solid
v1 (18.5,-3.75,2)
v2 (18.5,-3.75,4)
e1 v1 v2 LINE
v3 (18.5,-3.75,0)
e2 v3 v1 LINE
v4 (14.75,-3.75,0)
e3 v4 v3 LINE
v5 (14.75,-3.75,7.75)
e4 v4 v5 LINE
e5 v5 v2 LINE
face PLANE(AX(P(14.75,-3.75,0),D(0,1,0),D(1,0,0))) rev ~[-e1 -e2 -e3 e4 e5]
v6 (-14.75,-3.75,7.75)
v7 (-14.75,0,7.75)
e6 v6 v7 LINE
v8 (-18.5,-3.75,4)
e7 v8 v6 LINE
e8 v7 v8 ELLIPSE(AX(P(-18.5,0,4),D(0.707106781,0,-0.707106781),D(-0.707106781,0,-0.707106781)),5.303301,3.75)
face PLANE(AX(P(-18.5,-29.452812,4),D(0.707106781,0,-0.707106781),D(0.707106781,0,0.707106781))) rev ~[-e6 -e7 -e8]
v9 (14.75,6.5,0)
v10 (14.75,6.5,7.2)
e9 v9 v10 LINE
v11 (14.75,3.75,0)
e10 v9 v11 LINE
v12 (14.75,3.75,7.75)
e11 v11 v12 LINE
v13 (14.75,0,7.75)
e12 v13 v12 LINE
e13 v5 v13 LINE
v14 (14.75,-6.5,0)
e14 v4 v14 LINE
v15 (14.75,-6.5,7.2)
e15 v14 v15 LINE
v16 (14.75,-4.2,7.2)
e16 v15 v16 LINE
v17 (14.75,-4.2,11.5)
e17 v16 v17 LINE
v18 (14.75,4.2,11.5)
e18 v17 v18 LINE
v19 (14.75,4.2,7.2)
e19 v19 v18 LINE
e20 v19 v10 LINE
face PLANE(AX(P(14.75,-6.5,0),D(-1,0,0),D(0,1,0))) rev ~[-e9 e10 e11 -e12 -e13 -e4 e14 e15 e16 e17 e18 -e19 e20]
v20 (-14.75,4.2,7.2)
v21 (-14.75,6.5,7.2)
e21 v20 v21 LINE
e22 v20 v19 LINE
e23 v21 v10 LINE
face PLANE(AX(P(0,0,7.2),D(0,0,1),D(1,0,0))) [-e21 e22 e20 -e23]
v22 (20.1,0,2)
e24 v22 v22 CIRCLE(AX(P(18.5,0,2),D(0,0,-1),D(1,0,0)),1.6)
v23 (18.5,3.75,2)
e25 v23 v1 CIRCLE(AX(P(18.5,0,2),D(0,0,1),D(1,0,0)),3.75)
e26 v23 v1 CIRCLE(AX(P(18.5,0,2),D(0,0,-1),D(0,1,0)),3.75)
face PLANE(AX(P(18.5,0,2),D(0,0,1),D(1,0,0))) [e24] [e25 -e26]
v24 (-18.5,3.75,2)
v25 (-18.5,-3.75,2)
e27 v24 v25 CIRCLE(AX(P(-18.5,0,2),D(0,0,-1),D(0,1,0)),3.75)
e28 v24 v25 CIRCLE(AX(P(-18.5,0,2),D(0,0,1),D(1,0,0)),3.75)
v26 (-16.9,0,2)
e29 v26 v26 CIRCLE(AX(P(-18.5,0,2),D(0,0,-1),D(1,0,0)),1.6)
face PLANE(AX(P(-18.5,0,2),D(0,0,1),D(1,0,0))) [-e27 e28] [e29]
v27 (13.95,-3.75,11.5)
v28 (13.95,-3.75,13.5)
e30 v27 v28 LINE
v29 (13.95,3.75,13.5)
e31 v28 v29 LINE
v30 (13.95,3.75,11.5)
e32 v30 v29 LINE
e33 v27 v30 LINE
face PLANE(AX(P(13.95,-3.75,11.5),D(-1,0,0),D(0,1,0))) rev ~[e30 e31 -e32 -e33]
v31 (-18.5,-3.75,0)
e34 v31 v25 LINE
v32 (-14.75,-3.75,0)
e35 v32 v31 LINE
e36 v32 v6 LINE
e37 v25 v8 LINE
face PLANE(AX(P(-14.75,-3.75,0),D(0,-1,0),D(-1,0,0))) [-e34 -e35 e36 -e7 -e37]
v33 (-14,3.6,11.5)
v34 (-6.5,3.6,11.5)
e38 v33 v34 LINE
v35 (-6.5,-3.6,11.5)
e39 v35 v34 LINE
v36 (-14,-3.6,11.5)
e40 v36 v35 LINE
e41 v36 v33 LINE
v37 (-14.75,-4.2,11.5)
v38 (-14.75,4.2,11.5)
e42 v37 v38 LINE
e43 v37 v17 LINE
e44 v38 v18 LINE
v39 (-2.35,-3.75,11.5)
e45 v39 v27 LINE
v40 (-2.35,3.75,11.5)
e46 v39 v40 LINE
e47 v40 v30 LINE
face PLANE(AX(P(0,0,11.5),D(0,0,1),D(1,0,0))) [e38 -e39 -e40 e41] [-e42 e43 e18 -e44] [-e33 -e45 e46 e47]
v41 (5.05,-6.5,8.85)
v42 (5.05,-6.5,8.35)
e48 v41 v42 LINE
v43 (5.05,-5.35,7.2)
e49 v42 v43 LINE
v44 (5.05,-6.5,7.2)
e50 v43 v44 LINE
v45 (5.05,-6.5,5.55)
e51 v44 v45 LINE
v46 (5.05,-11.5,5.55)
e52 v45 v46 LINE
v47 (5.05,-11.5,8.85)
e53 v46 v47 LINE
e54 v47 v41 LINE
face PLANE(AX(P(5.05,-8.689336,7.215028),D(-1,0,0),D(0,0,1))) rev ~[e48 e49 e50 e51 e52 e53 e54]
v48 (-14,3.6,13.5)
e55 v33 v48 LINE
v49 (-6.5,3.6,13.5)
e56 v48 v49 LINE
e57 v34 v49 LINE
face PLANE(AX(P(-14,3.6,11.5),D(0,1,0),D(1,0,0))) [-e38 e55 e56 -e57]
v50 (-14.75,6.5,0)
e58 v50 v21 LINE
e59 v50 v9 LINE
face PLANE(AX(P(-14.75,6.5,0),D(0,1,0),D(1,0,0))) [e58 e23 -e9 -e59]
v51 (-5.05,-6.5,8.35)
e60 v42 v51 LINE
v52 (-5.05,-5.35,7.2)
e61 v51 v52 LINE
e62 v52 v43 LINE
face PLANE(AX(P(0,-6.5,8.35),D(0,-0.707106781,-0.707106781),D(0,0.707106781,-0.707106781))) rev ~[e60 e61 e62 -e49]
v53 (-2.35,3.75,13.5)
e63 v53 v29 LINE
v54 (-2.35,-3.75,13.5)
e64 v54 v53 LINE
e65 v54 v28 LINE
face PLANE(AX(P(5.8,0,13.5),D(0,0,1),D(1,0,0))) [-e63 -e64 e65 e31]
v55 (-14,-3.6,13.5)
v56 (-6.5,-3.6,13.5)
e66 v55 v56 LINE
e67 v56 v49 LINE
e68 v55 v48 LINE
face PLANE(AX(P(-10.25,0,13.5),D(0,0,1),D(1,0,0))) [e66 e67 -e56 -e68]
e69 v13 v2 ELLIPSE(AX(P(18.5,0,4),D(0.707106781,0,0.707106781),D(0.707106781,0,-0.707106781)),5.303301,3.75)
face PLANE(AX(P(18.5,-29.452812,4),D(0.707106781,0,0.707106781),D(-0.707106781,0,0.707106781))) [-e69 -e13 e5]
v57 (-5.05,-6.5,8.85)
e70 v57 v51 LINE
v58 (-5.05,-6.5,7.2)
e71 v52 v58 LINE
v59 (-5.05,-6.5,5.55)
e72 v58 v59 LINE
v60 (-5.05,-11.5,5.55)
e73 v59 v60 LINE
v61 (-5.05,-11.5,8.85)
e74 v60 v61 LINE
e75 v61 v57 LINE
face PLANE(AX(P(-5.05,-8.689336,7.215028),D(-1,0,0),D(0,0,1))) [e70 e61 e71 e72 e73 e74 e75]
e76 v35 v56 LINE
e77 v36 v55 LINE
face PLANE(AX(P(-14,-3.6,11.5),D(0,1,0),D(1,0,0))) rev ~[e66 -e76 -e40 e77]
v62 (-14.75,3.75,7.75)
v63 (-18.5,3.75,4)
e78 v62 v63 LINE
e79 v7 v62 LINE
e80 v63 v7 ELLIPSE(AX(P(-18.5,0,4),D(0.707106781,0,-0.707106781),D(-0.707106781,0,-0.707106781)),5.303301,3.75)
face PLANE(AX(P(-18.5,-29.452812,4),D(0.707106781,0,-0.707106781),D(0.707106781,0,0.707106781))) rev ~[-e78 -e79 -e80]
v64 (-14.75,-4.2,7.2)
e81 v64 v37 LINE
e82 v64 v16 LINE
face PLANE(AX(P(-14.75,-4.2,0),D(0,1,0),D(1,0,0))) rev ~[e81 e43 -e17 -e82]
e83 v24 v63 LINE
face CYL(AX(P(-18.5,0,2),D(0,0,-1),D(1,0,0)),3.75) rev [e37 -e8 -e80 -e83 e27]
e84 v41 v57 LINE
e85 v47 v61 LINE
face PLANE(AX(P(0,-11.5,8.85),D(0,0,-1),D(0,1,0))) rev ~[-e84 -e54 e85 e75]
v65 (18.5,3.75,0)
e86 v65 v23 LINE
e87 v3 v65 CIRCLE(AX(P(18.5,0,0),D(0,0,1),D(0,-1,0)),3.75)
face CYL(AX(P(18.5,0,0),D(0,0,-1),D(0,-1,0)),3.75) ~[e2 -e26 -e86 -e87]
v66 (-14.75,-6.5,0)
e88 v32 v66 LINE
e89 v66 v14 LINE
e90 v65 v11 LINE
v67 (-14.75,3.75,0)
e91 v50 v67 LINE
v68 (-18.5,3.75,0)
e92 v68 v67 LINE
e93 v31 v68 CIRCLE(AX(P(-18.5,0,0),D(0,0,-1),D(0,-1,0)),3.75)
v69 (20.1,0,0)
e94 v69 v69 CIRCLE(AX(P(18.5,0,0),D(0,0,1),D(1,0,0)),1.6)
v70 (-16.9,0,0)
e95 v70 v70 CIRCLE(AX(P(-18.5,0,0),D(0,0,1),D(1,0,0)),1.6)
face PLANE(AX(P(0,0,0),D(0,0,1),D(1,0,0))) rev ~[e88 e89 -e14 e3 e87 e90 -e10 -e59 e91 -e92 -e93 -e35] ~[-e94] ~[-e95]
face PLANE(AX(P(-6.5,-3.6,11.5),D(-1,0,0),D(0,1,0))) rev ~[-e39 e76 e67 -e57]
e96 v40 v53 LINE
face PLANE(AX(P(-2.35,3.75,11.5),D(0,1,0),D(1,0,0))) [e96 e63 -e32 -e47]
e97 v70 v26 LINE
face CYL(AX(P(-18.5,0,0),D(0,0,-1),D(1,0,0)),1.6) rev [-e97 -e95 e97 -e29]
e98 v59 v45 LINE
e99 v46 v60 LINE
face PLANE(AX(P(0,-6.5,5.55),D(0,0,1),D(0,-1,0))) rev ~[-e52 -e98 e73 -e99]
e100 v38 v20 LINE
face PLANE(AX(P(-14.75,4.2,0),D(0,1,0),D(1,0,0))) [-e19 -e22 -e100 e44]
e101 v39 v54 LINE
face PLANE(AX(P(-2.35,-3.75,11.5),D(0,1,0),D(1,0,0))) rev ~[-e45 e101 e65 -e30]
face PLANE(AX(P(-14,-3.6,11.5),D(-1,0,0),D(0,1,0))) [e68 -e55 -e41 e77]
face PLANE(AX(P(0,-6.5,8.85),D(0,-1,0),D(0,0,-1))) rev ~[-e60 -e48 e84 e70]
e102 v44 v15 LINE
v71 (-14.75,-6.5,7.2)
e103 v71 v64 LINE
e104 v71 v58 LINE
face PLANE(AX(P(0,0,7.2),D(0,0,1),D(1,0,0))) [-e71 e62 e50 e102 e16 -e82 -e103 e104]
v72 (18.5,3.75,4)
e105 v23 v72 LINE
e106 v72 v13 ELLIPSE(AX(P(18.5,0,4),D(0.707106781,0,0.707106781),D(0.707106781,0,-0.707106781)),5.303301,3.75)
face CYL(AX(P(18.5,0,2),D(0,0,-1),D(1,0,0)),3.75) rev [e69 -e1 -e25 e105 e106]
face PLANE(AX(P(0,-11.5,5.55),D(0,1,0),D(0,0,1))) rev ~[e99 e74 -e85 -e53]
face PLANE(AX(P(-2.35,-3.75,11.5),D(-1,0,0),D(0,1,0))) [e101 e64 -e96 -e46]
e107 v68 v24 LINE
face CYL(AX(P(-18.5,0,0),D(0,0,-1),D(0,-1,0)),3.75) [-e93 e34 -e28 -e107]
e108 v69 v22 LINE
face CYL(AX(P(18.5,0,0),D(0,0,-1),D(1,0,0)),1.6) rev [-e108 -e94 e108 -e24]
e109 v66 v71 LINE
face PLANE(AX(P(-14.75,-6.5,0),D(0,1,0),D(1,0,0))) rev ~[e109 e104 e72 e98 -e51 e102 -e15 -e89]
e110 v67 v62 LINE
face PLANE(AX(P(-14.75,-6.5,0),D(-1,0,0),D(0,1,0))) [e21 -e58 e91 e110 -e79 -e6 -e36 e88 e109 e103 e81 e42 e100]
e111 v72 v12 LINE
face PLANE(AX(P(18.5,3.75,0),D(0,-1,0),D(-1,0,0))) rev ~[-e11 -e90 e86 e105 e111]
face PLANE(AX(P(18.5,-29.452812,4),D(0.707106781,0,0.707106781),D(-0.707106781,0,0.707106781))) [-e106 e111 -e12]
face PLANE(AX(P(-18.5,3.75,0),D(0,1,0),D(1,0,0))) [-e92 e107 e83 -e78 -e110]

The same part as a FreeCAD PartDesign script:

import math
import FreeCAD as App
import Part
import Sketcher
from FreeCAD import Vector
Q = App.Units.Quantity

doc = App.newDocument("Part")
body = doc.addObject("PartDesign::Body", "Body")

# Sketch on XY plane
sketch1 = body.newObject("Sketcher::SketchObject", "Sketch")
sketch1.AttachmentSupport = (doc.getObject("XY_Plane"), [""])
sketch1.MapMode = "FlatFace"
sketch1.addGeometry([
    Part.LineSegment(Vector(-14.75, 4.2, 0), Vector(-14.75, -4.2, 0)),
    Part.LineSegment(Vector(-14.75, -4.2, 0), Vector(14.75, -4.2, 0)),
    Part.LineSegment(Vector(14.75, -4.2, 0), Vector(14.75, 4.2, 0)),
    Part.LineSegment(Vector(14.75, 4.2, 0), Vector(-14.75, 4.2, 0)),
], False)
sketch1.addConstraint([
    Sketcher.Constraint("Coincident", 0, 2, 1, 1),
    Sketcher.Constraint("Coincident", 1, 2, 2, 1),
    Sketcher.Constraint("Coincident", 2, 2, 3, 1),
    Sketcher.Constraint("Coincident", 3, 2, 0, 1),
    Sketcher.Constraint("Vertical", 0),
    Sketcher.Constraint("Horizontal", 1),
    Sketcher.Constraint("Vertical", 2),
    Sketcher.Constraint("Horizontal", 3),
    Sketcher.Constraint("Symmetric", 0, 2, 2, 2, -1, 1),
    Sketcher.Constraint("DistanceX", 1, 1, 1, 2, Q("29.5 mm")),
    Sketcher.Constraint("DistanceY", 0, 2, 0, 1, Q("8.4 mm")),
])
pad1 = body.newObject("PartDesign::Pad", "Pad")
pad1.Profile = sketch1
pad1.Length = 11.5

# Sketch on XY plane
sketch2 = body.newObject("Sketcher::SketchObject", "Sketch001")
sketch2.AttachmentSupport = (doc.getObject("XY_Plane"), [""])
sketch2.MapMode = "FlatFace"
sketch2.AttachmentOffset = App.Placement(Vector(0, 0, 11.5), App.Rotation())
sketch2.addGeometry([
    Part.LineSegment(Vector(-14, 3.6, 0), Vector(-14, -3.6, 0)),  # 0
    Part.LineSegment(Vector(-14, -3.6, 0), Vector(-6.5, -3.6, 0)),  # 1
    Part.LineSegment(Vector(-6.5, -3.6, 0), Vector(-6.5, 3.6, 0)),  # 2
    Part.LineSegment(Vector(-6.5, 3.6, 0), Vector(-14, 3.6, 0)),  # 3
    Part.LineSegment(Vector(-2.35, 3.75, 0), Vector(-2.35, -3.75, 0)),  # 4
    Part.LineSegment(Vector(-2.35, -3.75, 0), Vector(13.95, -3.75, 0)),  # 5
    Part.LineSegment(Vector(13.95, -3.75, 0), Vector(13.95, 3.75, 0)),  # 6
    Part.LineSegment(Vector(13.95, 3.75, 0), Vector(-2.35, 3.75, 0)),  # 7
], False)
sketch2.addConstraint([
    Sketcher.Constraint("Coincident", 0, 2, 1, 1),
    Sketcher.Constraint("Coincident", 1, 2, 2, 1),
    Sketcher.Constraint("Coincident", 2, 2, 3, 1),
    Sketcher.Constraint("Coincident", 3, 2, 0, 1),
    Sketcher.Constraint("Coincident", 4, 2, 5, 1),
    Sketcher.Constraint("Coincident", 5, 2, 6, 1),
    Sketcher.Constraint("Coincident", 6, 2, 7, 1),
    Sketcher.Constraint("Coincident", 7, 2, 4, 1),
    Sketcher.Constraint("Vertical", 0),
    Sketcher.Constraint("Horizontal", 1),
    Sketcher.Constraint("Vertical", 2),
    Sketcher.Constraint("Horizontal", 3),
    Sketcher.Constraint("Vertical", 4),
    Sketcher.Constraint("Horizontal", 5),
    Sketcher.Constraint("Vertical", 6),
    Sketcher.Constraint("Horizontal", 7),
    Sketcher.Constraint("Equal", 3, 4),
    Sketcher.Constraint("DistanceX", 1, 1, 1, 2, Q("7.5 mm")),
    Sketcher.Constraint("DistanceX", 5, 1, 5, 2, Q("16.3 mm")),
    Sketcher.Constraint("DistanceY", 0, 2, 0, 1, Q("7.2 mm")),
    Sketcher.Constraint("DistanceX", 0, 2, -1, 1, Q("14 mm")),
    Sketcher.Constraint("DistanceY", 0, 2, -1, 1, Q("3.6 mm")),
    Sketcher.Constraint("DistanceX", 4, 2, -1, 1, Q("2.35 mm")),
    Sketcher.Constraint("DistanceY", 4, 2, -1, 1, Q("3.75 mm")),
])
pad2 = body.newObject("PartDesign::Pad", "Pad001")
pad2.Profile = sketch2
pad2.Length = 2

# Sketch on XY plane
sketch3 = body.newObject("Sketcher::SketchObject", "Sketch002")
sketch3.AttachmentSupport = (doc.getObject("XY_Plane"), [""])
sketch3.MapMode = "FlatFace"
sketch3.addGeometry([
    Part.LineSegment(Vector(-14.75, 6.5, 0), Vector(-14.75, -6.5, 0)),
    Part.LineSegment(Vector(-14.75, -6.5, 0), Vector(14.75, -6.5, 0)),
    Part.LineSegment(Vector(14.75, -6.5, 0), Vector(14.75, 6.5, 0)),
    Part.LineSegment(Vector(14.75, 6.5, 0), Vector(-14.75, 6.5, 0)),
], False)
sketch3.addConstraint([
    Sketcher.Constraint("Coincident", 0, 2, 1, 1),
    Sketcher.Constraint("Coincident", 1, 2, 2, 1),
    Sketcher.Constraint("Coincident", 2, 2, 3, 1),
    Sketcher.Constraint("Coincident", 3, 2, 0, 1),
    Sketcher.Constraint("Vertical", 0),
    Sketcher.Constraint("Horizontal", 1),
    Sketcher.Constraint("Vertical", 2),
    Sketcher.Constraint("Horizontal", 3),
    Sketcher.Constraint("Symmetric", 0, 2, 2, 2, -1, 1),
    Sketcher.Constraint("DistanceY", 0, 2, 0, 1, Q("13 mm")),
    Sketcher.Constraint("DistanceX", 1, 1, 1, 2, Q("29.5 mm")),
])
pad3 = body.newObject("PartDesign::Pad", "Pad002")
pad3.Profile = sketch3
pad3.Length = 7.2

# Sketch on YZ plane
sketch4 = body.newObject("Sketcher::SketchObject", "Sketch003")
sketch4.AttachmentSupport = (doc.getObject("YZ_Plane"), [""])
sketch4.MapMode = "FlatFace"
sketch4.addGeometry([
    Part.LineSegment(Vector(-11.5, 5.55, 0), Vector(-6.5, 5.55, 0)),  # 0
    Part.LineSegment(Vector(-6.5, 5.55, 0), Vector(-6.5, 7.2, 0)),  # 1
    Part.LineSegment(Vector(-6.5, 7.2, 0), Vector(-5.35, 7.2, 0)),  # 2
    Part.LineSegment(Vector(-5.35, 7.2, 0), Vector(-6.5, 8.35, 0)),  # 3
    Part.LineSegment(Vector(-6.5, 8.35, 0), Vector(-6.5, 8.85, 0)),  # 4
    Part.LineSegment(Vector(-6.5, 8.85, 0), Vector(-11.5, 8.85, 0)),  # 5
    Part.LineSegment(Vector(-11.5, 8.85, 0), Vector(-11.5, 5.55, 0)),  # 6
], False)
sketch4.addConstraint([
    Sketcher.Constraint("Coincident", 0, 2, 1, 1),
    Sketcher.Constraint("Coincident", 1, 2, 2, 1),
    Sketcher.Constraint("Coincident", 2, 2, 3, 1),
    Sketcher.Constraint("Coincident", 3, 2, 4, 1),
    Sketcher.Constraint("Coincident", 4, 2, 5, 1),
    Sketcher.Constraint("Coincident", 5, 2, 6, 1),
    Sketcher.Constraint("Coincident", 6, 2, 0, 1),
    Sketcher.Constraint("Horizontal", 0),
    Sketcher.Constraint("Vertical", 1),
    Sketcher.Constraint("Horizontal", 2),
    Sketcher.Constraint("Vertical", 4),
    Sketcher.Constraint("Horizontal", 5),
    Sketcher.Constraint("Vertical", 6),
    Sketcher.Constraint("Vertical", 1, 2, 3, 2),
    Sketcher.Constraint("DistanceX", 0, 1, 0, 2, Q("5 mm")),
    Sketcher.Constraint("Angle", 3, Q("135 deg")),
    Sketcher.Constraint("DistanceY", 4, 1, 4, 2, Q("0.5 mm")),
    Sketcher.Constraint("DistanceY", 6, 2, 6, 1, Q("3.3 mm")),
    Sketcher.Constraint("DistanceX", 2, 1, 2, 2, Q("1.15 mm")),
    Sketcher.Constraint("DistanceX", 0, 2, -1, 1, Q("6.5 mm")),
    Sketcher.Constraint("DistanceY", -1, 1, 1, 2, Q("7.2 mm")),
])
pad4 = body.newObject("PartDesign::Pad", "Pad003")
pad4.Profile = sketch4
pad4.Length = 10.1
pad4.Midplane = True

# Sketch on XY plane
sketch5 = body.newObject("Sketcher::SketchObject", "Sketch004")
sketch5.AttachmentSupport = (doc.getObject("XY_Plane"), [""])
sketch5.MapMode = "FlatFace"
sketch5.addGeometry([
    Part.LineSegment(Vector(-14.75, 3.75, 0), Vector(-18.5, 3.75, 0)),  # 0
    Part.ArcOfCircle(Part.Circle(Vector(-18.5, 0, 0), Vector(0, 0, 1), 3.75), math.radians(90), math.radians(270)),  # 1
    Part.LineSegment(Vector(-18.5, -3.75, 0), Vector(-14.75, -3.75, 0)),  # 2
    Part.LineSegment(Vector(-14.75, -3.75, 0), Vector(-14.75, 3.75, 0)),  # 3
    Part.Circle(Vector(-18.5, 0, 0), Vector(0, 0, 1), 1.6),  # 4
    Part.LineSegment(Vector(18.5, 3.75, 0), Vector(14.75, 3.75, 0)),  # 5
    Part.LineSegment(Vector(14.75, 3.75, 0), Vector(14.75, -3.75, 0)),  # 6
    Part.LineSegment(Vector(14.75, -3.75, 0), Vector(18.5, -3.75, 0)),  # 7
    Part.ArcOfCircle(Part.Circle(Vector(18.5, 0, 0), Vector(0, 0, 1), 3.75), math.radians(-90), math.radians(90)),  # 8
    Part.Circle(Vector(18.5, 0, 0), Vector(0, 0, 1), 1.6),  # 9
], False)
sketch5.addConstraint([
    Sketcher.Constraint("Tangent", 0, 2, 1, 1),
    Sketcher.Constraint("Tangent", 1, 2, 2, 1),
    Sketcher.Constraint("Coincident", 2, 2, 3, 1),
    Sketcher.Constraint("Coincident", 3, 2, 0, 1),
    Sketcher.Constraint("Coincident", 5, 2, 6, 1),
    Sketcher.Constraint("Coincident", 6, 2, 7, 1),
    Sketcher.Constraint("Tangent", 7, 2, 8, 1),
    Sketcher.Constraint("Tangent", 8, 2, 5, 1),
    Sketcher.Constraint("Horizontal", 0),
    Sketcher.Constraint("Horizontal", 2),
    Sketcher.Constraint("Vertical", 3),
    Sketcher.Constraint("Horizontal", 5),
    Sketcher.Constraint("Vertical", 6),
    Sketcher.Constraint("Horizontal", 7),
    Sketcher.Constraint("Coincident", 4, 3, 1, 3),
    Sketcher.Constraint("Coincident", 9, 3, 8, 3),
    Sketcher.Constraint("Equal", 1, 8),
    Sketcher.Constraint("Equal", 4, 9),
    Sketcher.Constraint("Symmetric", 1, 3, 8, 3, -1, 1),
    Sketcher.Constraint("Symmetric", 3, 2, 5, 2, -2),
    Sketcher.Constraint("Diameter", 4, Q("3.2 mm")),
    Sketcher.Constraint("Radius", 1, Q("3.75 mm")),
    Sketcher.Constraint("DistanceX", 1, 3, 8, 3, Q("37 mm")),
    Sketcher.Constraint("DistanceX", 0, 2, 0, 1, Q("3.75 mm")),
])
pad5 = body.newObject("PartDesign::Pad", "Pad004")
pad5.Profile = sketch5
pad5.Length = 10

# Sketch on XY plane
sketch6 = body.newObject("Sketcher::SketchObject", "Sketch005")
sketch6.AttachmentSupport = (doc.getObject("XY_Plane"), [""])
sketch6.MapMode = "FlatFace"
sketch6.AttachmentOffset = App.Placement(Vector(0, 0, 2), App.Rotation())
sketch6.addGeometry([
    Part.Circle(Vector(-18.5, 0, 0), Vector(0, 0, 1), 3.75),
    Part.Circle(Vector(18.5, 0, 0), Vector(0, 0, 1), 3.75),
], False)
sketch6.addConstraint([
    Sketcher.Constraint("Equal", 0, 1),
    Sketcher.Constraint("Symmetric", 0, 3, 1, 3, -1, 1),
    Sketcher.Constraint("PointOnObject", 0, 3, -1),
    Sketcher.Constraint("Diameter", 0, Q("7.5 mm")),
    Sketcher.Constraint("DistanceX", 0, 3, 1, 3, Q("37 mm")),
])
pocket1 = body.newObject("PartDesign::Pocket", "Pocket")
pocket1.Profile = sketch6
pocket1.Length = 8
pocket1.Reversed = True

# Sketch on XZ plane
sketch7 = body.newObject("Sketcher::SketchObject", "Sketch006")
sketch7.AttachmentSupport = (doc.getObject("XZ_Plane"), [""])
sketch7.MapMode = "FlatFace"
sketch7.addGeometry([
    Part.LineSegment(Vector(-14.75, 7.75, 0), Vector(-18.5, 4, 0)),  # 0
    Part.LineSegment(Vector(-18.5, 4, 0), Vector(-18.5, 10, 0)),  # 1
    Part.LineSegment(Vector(-18.5, 10, 0), Vector(-14.75, 10, 0)),  # 2
    Part.LineSegment(Vector(-14.75, 10, 0), Vector(-14.75, 7.75, 0)),  # 3
    Part.LineSegment(Vector(18.5, 10, 0), Vector(18.5, 4, 0)),  # 4
    Part.LineSegment(Vector(18.5, 4, 0), Vector(14.75, 7.75, 0)),  # 5
    Part.LineSegment(Vector(14.75, 7.75, 0), Vector(14.75, 10, 0)),  # 6
    Part.LineSegment(Vector(14.75, 10, 0), Vector(18.5, 10, 0)),  # 7
], False)
sketch7.addConstraint([
    Sketcher.Constraint("Coincident", 0, 2, 1, 1),
    Sketcher.Constraint("Coincident", 1, 2, 2, 1),
    Sketcher.Constraint("Coincident", 2, 2, 3, 1),
    Sketcher.Constraint("Coincident", 3, 2, 0, 1),
    Sketcher.Constraint("Coincident", 4, 2, 5, 1),
    Sketcher.Constraint("Coincident", 5, 2, 6, 1),
    Sketcher.Constraint("Coincident", 6, 2, 7, 1),
    Sketcher.Constraint("Coincident", 7, 2, 4, 1),
    Sketcher.Constraint("Vertical", 1),
    Sketcher.Constraint("Horizontal", 2),
    Sketcher.Constraint("Vertical", 3),
    Sketcher.Constraint("Vertical", 4),
    Sketcher.Constraint("Vertical", 6),
    Sketcher.Constraint("Horizontal", 7),
    Sketcher.Constraint("Symmetric", 0, 2, 4, 2, -2),
    Sketcher.Constraint("Symmetric", 3, 2, 5, 2, -2),
    Sketcher.Constraint("Perpendicular", 0, 5),
    Sketcher.Constraint("Horizontal", 2, 2, 6, 2),
    Sketcher.Constraint("DistanceY", 1, 1, 1, 2, Q("6 mm")),
    Sketcher.Constraint("DistanceY", -1, 1, 0, 2, Q("4 mm")),
    Sketcher.Constraint("DistanceX", 0, 2, 4, 2, Q("37 mm")),
    Sketcher.Constraint("DistanceX", 2, 1, 2, 2, Q("3.75 mm")),
])
pocket2 = body.newObject("PartDesign::Pocket", "Pocket001")
pocket2.Profile = sketch7
pocket2.Type = "ThroughAll"
pocket2.Midplane = True

doc.recompute()
